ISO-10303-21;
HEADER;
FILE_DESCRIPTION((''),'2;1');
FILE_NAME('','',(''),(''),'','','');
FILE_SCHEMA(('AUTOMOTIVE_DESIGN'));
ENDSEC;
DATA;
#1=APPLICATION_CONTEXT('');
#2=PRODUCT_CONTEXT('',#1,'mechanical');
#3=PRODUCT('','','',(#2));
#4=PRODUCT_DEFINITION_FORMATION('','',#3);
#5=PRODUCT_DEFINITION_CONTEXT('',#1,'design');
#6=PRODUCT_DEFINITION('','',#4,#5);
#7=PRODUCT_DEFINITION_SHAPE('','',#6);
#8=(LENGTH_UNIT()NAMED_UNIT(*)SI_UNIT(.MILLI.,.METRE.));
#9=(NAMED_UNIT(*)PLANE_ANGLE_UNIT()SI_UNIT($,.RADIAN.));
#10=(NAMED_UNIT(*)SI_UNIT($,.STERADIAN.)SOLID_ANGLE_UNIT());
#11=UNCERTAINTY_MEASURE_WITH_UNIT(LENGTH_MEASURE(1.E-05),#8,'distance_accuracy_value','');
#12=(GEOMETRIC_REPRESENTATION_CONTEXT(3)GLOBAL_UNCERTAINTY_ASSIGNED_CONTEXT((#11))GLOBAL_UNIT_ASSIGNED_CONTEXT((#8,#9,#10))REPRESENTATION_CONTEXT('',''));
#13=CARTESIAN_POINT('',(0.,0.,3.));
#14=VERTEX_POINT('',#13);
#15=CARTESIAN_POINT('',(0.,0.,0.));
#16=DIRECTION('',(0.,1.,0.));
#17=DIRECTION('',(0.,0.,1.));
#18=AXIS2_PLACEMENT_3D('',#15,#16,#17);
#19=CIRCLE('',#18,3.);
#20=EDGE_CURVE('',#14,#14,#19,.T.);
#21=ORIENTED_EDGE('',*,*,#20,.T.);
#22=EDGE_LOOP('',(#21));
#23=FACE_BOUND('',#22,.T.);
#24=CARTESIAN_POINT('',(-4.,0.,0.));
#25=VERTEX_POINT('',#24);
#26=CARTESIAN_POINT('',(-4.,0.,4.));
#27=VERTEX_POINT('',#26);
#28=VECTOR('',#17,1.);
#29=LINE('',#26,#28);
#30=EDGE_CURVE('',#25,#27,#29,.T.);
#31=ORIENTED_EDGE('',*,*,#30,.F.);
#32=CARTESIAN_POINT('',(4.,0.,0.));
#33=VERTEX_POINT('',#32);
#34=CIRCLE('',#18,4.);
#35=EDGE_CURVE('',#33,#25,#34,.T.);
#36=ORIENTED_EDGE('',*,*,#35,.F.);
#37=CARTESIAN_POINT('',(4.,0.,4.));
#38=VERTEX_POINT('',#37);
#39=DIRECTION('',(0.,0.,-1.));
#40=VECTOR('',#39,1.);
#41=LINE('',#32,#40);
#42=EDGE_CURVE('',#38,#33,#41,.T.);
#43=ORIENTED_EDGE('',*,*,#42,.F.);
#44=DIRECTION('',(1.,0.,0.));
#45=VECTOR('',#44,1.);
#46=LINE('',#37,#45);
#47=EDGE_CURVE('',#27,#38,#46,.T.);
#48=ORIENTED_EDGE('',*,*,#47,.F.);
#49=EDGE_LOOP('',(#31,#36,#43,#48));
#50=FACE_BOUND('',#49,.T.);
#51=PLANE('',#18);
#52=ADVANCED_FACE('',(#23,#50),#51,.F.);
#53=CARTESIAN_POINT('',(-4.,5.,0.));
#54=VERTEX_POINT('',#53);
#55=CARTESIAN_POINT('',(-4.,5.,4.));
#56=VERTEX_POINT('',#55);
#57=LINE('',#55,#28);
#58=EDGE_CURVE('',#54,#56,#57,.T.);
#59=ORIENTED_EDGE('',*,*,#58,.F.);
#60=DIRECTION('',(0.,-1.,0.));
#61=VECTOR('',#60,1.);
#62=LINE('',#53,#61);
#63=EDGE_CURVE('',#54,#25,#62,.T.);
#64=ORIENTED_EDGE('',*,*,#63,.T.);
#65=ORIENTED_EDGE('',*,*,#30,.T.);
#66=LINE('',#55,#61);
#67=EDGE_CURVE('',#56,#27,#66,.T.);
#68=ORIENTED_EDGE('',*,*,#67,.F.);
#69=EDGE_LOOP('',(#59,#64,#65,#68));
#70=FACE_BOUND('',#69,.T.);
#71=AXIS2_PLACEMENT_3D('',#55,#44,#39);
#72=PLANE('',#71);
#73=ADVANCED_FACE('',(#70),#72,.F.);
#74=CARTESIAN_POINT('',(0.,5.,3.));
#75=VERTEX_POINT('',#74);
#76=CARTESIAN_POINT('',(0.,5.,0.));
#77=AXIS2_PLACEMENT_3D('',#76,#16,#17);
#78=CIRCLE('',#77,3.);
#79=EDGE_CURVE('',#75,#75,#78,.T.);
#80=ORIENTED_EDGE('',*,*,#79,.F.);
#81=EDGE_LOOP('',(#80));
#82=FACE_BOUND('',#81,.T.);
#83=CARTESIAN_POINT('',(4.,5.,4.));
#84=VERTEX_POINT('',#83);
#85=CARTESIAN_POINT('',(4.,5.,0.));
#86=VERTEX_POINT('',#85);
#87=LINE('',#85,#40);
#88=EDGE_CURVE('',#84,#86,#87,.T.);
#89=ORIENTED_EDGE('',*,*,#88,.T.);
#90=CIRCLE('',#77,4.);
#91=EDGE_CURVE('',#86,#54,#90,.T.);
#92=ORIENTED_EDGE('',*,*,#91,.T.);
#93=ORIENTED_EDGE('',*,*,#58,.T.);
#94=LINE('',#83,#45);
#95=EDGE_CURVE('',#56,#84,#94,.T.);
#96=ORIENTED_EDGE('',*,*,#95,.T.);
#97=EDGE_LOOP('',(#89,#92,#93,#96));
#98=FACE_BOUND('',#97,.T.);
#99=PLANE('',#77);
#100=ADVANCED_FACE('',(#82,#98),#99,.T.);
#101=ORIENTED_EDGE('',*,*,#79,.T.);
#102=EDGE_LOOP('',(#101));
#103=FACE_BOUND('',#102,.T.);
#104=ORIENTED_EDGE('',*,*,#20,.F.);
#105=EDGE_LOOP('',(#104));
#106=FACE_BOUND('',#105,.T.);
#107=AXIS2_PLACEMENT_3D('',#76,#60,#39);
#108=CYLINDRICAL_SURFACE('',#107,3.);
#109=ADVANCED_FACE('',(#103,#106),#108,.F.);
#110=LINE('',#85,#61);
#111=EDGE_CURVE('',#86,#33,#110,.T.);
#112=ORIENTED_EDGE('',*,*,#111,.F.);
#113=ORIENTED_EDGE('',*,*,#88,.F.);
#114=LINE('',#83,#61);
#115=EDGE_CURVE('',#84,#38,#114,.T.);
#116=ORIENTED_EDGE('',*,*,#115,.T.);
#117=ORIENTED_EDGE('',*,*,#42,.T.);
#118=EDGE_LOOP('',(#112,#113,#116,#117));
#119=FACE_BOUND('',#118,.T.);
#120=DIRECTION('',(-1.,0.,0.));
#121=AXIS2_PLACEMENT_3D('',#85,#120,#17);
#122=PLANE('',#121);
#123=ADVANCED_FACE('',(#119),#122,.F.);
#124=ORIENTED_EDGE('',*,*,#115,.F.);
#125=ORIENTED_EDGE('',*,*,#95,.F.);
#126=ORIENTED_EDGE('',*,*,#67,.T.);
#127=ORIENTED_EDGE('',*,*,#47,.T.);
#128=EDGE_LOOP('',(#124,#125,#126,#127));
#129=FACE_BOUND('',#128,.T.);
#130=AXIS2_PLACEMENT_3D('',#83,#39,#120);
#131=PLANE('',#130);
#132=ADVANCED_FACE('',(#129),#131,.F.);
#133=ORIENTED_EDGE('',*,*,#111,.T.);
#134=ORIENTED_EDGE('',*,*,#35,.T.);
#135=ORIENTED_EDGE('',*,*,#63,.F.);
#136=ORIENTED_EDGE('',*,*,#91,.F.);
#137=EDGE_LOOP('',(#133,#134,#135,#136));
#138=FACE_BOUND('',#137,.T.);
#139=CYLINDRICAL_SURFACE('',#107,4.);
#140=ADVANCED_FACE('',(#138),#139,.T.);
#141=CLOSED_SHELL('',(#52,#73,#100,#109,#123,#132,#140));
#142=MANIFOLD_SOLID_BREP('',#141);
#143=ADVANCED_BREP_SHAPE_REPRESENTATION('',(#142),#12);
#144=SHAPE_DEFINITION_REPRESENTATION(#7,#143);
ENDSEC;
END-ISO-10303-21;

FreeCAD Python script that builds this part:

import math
import FreeCAD as App
import Part
import Sketcher

doc = App.newDocument("Part")
params = doc.addObject("Spreadsheet::Sheet", "Params")
for row, (alias, value) in enumerate([
    ("sketch1_diameter", "6 mm"),
    ("sketch1_radius", "4 mm"),
    ("sketch1_height", "4 mm"),
    ("pad1_length", "5 mm"),
], start=1):
    params.set(f"A{row}", alias)
    params.set(f"B{row}", "=" + value)
    params.setAlias(f"B{row}", alias)

body = doc.addObject("PartDesign::Body", "Body")

# Sketch on XZ plane
sketch1 = body.newObject("Sketcher::SketchObject", "Sketch")
sketch1.AttachmentSupport = (doc.getObject("XZ_Plane"), [""])
sketch1.MapMode = "FlatFace"
sketch1.addGeometry(Part.LineSegment(App.Vector(4, 4, 0), App.Vector(4, 0, 0)), False)
sketch1.addGeometry(Part.ArcOfCircle(Part.Circle(App.Vector(0, 0, 0), App.Vector(0, 0, 1), 4), math.radians(180), math.radians(360)), False)
sketch1.addGeometry(Part.LineSegment(App.Vector(-4, 0, 0), App.Vector(-4, 4, 0)), False)
sketch1.addGeometry(Part.LineSegment(App.Vector(-4, 4, 0), App.Vector(4, 4, 0)), False)
sketch1.addGeometry(Part.Circle(App.Vector(0, 0, 0), App.Vector(0, 0, 1), 3), False)
sketch1.addConstraint(Sketcher.Constraint("Tangent", 0, 2, 1, 2))
sketch1.addConstraint(Sketcher.Constraint("Tangent", 1, 1, 2, 1))
sketch1.addConstraint(Sketcher.Constraint("Coincident", 2, 2, 3, 1))
sketch1.addConstraint(Sketcher.Constraint("Coincident", 3, 2, 0, 1))
sketch1.addConstraint(Sketcher.Constraint("Vertical", 0))
sketch1.addConstraint(Sketcher.Constraint("Vertical", 2))
sketch1.addConstraint(Sketcher.Constraint("Horizontal", 3))
sketch1.addConstraint(Sketcher.Constraint("Coincident", 1, 3, -1, 1))
sketch1.addConstraint(Sketcher.Constraint("Coincident", 4, 3, -1, 1))
sketch1.addConstraint(Sketcher.Constraint("Diameter", 4, 6.0))
sketch1.addConstraint(Sketcher.Constraint("Radius", 1, 4.0))
sketch1.addConstraint(Sketcher.Constraint("DistanceY", 0, 2, 0, 1, 4.0))
sketch1.setExpression("Constraints[9]", "Params.sketch1_diameter")
sketch1.setExpression("Constraints[10]", "Params.sketch1_radius")
sketch1.setExpression("Constraints[11]", "Params.sketch1_height")
pad1 = body.newObject("PartDesign::Pad", "Pad")
pad1.Profile = sketch1
pad1.setExpression("Length", "Params.pad1_length")
pad1.Reversed = True

doc.recompute()
